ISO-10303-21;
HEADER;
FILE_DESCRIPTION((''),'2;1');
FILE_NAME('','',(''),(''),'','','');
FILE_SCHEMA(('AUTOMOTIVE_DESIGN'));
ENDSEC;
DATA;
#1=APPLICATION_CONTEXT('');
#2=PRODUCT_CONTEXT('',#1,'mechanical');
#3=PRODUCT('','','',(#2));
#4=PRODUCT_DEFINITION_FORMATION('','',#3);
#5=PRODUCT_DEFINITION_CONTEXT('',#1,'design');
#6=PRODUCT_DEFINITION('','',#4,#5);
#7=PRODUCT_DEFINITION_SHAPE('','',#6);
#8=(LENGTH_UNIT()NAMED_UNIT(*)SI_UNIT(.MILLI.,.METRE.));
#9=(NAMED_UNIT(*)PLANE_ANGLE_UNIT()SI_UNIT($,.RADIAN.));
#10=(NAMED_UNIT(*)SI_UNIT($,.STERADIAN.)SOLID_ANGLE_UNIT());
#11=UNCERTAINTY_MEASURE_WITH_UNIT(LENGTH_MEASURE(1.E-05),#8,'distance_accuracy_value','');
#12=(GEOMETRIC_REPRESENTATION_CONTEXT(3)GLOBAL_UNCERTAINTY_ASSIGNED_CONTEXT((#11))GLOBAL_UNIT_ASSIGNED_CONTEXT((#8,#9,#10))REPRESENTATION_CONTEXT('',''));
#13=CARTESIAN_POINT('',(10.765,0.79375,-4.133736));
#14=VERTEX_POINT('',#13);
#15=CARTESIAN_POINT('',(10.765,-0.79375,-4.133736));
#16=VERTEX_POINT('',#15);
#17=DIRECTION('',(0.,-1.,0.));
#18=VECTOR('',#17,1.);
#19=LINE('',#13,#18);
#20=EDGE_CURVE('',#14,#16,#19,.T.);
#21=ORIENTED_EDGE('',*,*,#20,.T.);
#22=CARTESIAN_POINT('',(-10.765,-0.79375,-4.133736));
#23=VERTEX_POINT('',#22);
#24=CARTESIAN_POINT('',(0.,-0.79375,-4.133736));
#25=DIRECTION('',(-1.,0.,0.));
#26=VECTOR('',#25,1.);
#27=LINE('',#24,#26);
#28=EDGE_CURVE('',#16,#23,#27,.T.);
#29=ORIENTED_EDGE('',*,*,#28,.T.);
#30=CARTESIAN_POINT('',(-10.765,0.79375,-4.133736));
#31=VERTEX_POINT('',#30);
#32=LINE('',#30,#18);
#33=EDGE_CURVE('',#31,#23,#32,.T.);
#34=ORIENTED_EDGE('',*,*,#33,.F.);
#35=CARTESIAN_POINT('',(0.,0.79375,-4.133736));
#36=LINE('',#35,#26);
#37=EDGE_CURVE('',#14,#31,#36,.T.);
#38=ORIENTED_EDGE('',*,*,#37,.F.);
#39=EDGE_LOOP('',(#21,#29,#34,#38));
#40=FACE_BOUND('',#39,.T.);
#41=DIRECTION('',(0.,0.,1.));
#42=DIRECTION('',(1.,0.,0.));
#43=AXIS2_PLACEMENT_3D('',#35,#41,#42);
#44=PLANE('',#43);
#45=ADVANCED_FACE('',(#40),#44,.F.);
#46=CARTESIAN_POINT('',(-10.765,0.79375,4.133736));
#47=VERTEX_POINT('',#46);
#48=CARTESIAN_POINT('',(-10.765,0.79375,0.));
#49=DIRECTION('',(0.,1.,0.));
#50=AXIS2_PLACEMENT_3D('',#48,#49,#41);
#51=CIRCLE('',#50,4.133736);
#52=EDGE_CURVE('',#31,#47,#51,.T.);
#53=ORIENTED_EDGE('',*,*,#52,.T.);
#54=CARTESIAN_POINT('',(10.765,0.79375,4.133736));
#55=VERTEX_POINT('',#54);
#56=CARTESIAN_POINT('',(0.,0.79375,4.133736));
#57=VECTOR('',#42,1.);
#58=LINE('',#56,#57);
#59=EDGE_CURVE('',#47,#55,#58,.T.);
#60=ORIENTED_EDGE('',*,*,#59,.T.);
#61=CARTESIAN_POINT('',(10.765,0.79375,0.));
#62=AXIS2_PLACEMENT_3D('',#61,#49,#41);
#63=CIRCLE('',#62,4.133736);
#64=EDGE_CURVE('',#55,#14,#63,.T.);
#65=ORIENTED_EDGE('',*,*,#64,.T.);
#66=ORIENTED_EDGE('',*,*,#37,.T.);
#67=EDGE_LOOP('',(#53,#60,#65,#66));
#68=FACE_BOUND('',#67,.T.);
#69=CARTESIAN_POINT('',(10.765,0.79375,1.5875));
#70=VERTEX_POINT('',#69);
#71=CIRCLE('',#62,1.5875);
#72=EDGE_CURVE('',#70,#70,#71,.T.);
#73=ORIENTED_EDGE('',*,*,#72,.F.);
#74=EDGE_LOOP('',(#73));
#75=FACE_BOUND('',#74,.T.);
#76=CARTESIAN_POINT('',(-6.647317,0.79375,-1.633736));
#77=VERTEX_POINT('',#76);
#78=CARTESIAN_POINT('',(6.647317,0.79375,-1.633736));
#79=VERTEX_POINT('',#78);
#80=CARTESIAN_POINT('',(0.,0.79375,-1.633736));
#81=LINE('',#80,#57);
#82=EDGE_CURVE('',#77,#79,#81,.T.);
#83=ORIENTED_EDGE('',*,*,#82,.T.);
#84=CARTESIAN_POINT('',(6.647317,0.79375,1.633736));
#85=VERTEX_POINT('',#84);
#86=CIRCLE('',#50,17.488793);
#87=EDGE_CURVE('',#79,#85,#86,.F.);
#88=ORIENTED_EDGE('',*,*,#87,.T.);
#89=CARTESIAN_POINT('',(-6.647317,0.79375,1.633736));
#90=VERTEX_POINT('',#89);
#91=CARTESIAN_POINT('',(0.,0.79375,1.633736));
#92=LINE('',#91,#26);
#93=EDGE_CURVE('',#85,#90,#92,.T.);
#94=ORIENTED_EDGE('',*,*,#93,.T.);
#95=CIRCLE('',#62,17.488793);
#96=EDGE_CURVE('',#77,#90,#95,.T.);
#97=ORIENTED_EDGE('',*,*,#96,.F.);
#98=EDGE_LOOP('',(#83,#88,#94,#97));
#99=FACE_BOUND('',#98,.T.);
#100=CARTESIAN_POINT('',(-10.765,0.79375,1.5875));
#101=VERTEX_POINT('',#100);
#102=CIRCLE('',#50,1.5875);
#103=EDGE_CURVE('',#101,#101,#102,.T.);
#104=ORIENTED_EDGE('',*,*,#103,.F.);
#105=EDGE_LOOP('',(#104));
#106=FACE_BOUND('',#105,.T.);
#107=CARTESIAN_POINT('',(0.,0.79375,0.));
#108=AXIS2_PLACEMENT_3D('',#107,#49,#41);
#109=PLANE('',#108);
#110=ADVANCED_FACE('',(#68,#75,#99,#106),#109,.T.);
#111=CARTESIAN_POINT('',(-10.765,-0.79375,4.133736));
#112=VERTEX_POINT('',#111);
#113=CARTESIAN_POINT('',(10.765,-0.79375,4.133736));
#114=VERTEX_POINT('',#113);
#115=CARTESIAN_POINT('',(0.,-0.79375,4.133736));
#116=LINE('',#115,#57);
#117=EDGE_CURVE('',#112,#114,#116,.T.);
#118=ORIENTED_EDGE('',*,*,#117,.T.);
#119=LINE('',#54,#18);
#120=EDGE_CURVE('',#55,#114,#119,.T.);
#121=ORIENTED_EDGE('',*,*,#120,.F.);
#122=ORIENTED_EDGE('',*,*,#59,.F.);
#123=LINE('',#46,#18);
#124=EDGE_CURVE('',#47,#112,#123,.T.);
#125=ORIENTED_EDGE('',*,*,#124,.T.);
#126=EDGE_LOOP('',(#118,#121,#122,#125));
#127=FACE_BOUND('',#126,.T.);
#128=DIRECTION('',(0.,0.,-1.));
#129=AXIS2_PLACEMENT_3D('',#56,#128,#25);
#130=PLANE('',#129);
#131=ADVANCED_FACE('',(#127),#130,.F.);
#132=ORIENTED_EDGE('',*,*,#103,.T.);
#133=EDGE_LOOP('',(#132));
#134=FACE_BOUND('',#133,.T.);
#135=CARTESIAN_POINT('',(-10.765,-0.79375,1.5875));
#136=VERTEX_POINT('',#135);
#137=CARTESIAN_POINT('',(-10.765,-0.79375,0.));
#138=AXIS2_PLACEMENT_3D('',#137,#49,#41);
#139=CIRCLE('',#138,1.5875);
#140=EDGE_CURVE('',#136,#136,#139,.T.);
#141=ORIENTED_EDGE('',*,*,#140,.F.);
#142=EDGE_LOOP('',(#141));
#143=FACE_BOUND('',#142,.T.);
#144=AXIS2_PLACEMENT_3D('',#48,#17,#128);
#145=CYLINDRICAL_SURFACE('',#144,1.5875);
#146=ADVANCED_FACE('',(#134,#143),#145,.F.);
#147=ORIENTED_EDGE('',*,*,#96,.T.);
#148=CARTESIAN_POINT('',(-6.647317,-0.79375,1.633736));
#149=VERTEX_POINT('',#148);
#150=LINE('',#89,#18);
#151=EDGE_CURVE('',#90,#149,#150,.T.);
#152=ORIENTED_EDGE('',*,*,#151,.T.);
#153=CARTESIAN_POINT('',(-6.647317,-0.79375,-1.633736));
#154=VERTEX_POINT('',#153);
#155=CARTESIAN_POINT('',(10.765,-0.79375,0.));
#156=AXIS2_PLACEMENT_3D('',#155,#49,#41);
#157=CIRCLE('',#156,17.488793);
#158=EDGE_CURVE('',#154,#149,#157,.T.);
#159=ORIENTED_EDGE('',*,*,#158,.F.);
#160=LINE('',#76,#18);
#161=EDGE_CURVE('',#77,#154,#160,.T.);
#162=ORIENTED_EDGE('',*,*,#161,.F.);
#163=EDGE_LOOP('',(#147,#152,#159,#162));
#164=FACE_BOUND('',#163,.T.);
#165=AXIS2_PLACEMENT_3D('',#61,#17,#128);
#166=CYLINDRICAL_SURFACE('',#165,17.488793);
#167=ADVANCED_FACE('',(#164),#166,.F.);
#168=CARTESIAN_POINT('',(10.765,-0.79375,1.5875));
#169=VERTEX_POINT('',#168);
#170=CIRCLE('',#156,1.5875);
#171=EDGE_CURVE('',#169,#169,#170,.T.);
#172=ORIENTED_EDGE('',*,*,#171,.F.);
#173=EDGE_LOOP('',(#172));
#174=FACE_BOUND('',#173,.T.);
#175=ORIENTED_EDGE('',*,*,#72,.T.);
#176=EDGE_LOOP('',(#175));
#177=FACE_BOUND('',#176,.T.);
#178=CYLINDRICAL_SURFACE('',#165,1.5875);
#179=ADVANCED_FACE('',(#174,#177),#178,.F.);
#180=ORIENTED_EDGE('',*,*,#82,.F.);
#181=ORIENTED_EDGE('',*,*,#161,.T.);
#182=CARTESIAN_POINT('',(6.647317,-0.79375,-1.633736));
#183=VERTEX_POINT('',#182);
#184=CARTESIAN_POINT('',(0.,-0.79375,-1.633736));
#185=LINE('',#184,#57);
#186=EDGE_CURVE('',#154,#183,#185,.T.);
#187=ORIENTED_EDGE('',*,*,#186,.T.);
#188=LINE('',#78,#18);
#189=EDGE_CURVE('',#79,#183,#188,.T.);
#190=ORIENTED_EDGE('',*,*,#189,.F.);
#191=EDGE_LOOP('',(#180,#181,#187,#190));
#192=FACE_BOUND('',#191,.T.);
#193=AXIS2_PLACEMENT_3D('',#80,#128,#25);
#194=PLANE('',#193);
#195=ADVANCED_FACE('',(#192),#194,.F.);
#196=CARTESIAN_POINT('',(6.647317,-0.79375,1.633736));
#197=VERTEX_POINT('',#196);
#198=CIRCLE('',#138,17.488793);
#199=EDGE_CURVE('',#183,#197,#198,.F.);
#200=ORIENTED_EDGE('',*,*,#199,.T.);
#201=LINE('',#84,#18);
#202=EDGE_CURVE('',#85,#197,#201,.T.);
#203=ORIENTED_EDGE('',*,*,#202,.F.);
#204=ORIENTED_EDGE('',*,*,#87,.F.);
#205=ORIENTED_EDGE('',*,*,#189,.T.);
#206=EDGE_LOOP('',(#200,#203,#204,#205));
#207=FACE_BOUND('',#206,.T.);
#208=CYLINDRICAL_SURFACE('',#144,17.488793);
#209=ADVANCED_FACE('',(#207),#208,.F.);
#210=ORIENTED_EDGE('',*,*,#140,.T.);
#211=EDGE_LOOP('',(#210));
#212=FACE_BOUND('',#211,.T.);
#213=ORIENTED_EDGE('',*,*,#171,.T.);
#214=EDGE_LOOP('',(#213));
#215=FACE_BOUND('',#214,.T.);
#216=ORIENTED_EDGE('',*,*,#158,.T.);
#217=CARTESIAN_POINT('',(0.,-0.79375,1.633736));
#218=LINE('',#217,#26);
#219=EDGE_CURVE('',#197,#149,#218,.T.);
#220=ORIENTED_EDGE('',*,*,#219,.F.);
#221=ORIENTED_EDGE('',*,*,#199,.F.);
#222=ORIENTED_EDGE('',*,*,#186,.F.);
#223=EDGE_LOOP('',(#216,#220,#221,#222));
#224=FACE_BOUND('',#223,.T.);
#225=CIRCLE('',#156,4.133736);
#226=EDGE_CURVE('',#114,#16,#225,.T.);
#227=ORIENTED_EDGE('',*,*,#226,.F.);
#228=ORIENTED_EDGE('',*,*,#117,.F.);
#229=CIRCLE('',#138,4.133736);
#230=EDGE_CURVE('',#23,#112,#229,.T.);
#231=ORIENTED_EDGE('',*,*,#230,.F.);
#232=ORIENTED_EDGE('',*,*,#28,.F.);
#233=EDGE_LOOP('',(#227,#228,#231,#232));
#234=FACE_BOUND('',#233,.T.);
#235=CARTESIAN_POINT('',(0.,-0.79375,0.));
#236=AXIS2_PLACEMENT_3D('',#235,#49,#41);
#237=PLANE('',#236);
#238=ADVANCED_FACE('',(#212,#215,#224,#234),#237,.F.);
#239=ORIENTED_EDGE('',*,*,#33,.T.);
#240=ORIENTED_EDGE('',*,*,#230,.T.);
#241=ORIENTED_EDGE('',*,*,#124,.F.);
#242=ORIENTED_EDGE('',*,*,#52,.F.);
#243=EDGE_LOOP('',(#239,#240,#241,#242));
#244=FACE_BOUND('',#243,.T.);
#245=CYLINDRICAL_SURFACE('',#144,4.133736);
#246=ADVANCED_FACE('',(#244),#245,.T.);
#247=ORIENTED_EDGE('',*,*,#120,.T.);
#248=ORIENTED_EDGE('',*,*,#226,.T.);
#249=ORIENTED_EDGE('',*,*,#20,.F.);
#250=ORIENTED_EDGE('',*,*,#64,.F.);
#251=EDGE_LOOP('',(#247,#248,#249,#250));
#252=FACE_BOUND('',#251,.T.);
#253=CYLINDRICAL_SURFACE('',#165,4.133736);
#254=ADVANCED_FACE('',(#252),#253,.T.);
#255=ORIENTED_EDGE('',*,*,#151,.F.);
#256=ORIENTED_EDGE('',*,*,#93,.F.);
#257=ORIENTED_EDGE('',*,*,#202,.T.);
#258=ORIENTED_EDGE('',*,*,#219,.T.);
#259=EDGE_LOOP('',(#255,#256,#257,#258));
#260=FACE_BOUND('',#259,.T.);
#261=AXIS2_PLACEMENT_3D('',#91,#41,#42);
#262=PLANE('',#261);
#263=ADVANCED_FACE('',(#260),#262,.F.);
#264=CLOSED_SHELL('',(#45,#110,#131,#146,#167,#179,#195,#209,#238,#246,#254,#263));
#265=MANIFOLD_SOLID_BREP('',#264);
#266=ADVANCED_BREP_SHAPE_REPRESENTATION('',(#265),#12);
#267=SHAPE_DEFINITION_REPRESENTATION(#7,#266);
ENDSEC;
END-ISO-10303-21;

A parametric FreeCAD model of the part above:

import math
import FreeCAD as App
import Part
import Sketcher

V = App.Vector
Q = App.Units.Quantity

doc = App.newDocument("Part")
body = doc.addObject("PartDesign::Body", "Body")

# Sketch on XZ plane
sketch1 = body.newObject("Sketcher::SketchObject", "Sketch")
sketch1.AttachmentSupport = (doc.getObject("XZ_Plane"), [""])
sketch1.MapMode = "FlatFace"
sketch1.addGeometry(Part.LineSegment(V(10.8, -4.1, 0), V(-10.8, -4.1, 0)), False)
sketch1.addGeometry(Part.ArcOfCircle(Part.Circle(V(-10.8, 0, 0), V(0, 0, 1), 4.1), math.radians(90), math.radians(270)), False)
sketch1.addGeometry(Part.LineSegment(V(-10.8, 4.1, 0), V(10.8, 4.1, 0)), False)
sketch1.addGeometry(Part.ArcOfCircle(Part.Circle(V(10.8, 0, 0), V(0, 0, 1), 4.1), math.radians(-90), math.radians(90)), False)
sketch1.addGeometry(Part.Circle(V(-10.8, 0, 0), V(0, 0, 1), 1.6), False)
sketch1.addGeometry(Part.ArcOfCircle(Part.Circle(V(-10.8, 0, 0), V(0, 0, 1), 17.5), math.radians(-5.36), math.radians(5.36)), False)
sketch1.addGeometry(Part.LineSegment(V(6.6, 1.6, 0), V(-6.6, 1.6, 0)), False)
sketch1.addGeometry(Part.ArcOfCircle(Part.Circle(V(10.8, 0, 0), V(0, 0, 1), 17.5), math.radians(174.64), math.radians(185.36)), False)
sketch1.addGeometry(Part.LineSegment(V(-6.6, -1.6, 0), V(6.6, -1.6, 0)), False)
sketch1.addGeometry(Part.Circle(V(10.8, 0, 0), V(0, 0, 1), 1.6), False)
sketch1.addConstraint(Sketcher.Constraint("Tangent", 0, 2, 1, 2))
sketch1.addConstraint(Sketcher.Constraint("Tangent", 1, 1, 2, 1))
sketch1.addConstraint(Sketcher.Constraint("Tangent", 2, 2, 3, 2))
sketch1.addConstraint(Sketcher.Constraint("Tangent", 3, 1, 0, 1))
sketch1.addConstraint(Sketcher.Constraint("Coincident", 5, 2, 6, 1))
sketch1.addConstraint(Sketcher.Constraint("Coincident", 6, 2, 7, 1))
sketch1.addConstraint(Sketcher.Constraint("Coincident", 7, 2, 8, 1))
sketch1.addConstraint(Sketcher.Constraint("Coincident", 8, 2, 5, 1))
sketch1.addConstraint(Sketcher.Constraint("Horizontal", 0))
sketch1.addConstraint(Sketcher.Constraint("Horizontal", 2))
sketch1.addConstraint(Sketcher.Constraint("Horizontal", 6))
sketch1.addConstraint(Sketcher.Constraint("Horizontal", 8))
sketch1.addConstraint(Sketcher.Constraint("Coincident", 4, 3, 1, 3))
sketch1.addConstraint(Sketcher.Constraint("Coincident", 5, 3, 1, 3))
sketch1.addConstraint(Sketcher.Constraint("Coincident", 7, 3, 3, 3))
sketch1.addConstraint(Sketcher.Constraint("Coincident", 9, 3, 3, 3))
sketch1.addConstraint(Sketcher.Constraint("Equal", 5, 7))
sketch1.addConstraint(Sketcher.Constraint("Equal", 4, 9))
sketch1.addConstraint(Sketcher.Constraint("Symmetric", 1, 3, 3, 3, -1, 1))
sketch1.addConstraint(Sketcher.Constraint("Vertical", 6, 2, 7, 2))
sketch1.addConstraint(Sketcher.Constraint("Diameter", 4, Q("0.125 in")))
sketch1.addConstraint(Sketcher.Constraint("DistanceX", 0, 2, 0, 1, Q("21.53 mm")))
sketch1.addConstraint(Sketcher.Constraint("Radius", 1, Q("4.133736 mm")))
sketch1.addConstraint(Sketcher.Constraint("Radius", 5, Q("17.488793 mm")))
sketch1.addConstraint(Sketcher.Constraint("DistanceY", 5, 2, 2, 2, Q("2.5 mm")))
pad1 = body.newObject("PartDesign::Pad", "Pad")
pad1.Profile = sketch1
pad1.Length = Q("0.0625 in")
pad1.Midplane = True

doc.recompute()
